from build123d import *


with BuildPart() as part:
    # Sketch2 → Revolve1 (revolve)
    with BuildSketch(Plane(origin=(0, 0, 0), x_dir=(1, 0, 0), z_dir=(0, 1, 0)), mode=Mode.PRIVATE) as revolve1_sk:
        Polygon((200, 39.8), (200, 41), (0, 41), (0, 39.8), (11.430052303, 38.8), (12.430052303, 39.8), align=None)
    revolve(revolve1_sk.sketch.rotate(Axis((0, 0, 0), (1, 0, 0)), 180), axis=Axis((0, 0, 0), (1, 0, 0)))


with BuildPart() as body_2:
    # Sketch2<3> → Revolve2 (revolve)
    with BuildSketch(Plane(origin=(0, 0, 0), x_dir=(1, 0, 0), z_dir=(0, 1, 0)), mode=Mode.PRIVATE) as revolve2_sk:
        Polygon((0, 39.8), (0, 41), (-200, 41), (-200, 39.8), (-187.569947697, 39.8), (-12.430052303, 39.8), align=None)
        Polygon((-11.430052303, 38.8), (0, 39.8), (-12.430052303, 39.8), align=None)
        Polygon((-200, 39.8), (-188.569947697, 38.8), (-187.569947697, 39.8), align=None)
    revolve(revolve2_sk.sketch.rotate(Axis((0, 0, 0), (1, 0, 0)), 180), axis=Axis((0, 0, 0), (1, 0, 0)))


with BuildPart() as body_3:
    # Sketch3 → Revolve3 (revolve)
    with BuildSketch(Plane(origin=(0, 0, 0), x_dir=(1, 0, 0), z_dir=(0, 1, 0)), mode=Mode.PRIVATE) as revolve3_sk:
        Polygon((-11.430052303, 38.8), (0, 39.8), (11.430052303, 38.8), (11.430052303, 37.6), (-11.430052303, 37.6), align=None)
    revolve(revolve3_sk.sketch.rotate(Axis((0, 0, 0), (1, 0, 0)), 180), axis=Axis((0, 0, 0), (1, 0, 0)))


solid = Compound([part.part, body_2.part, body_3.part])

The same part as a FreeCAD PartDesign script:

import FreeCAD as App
import Part
import Sketcher
Q = App.Units.Quantity

doc = App.newDocument("Part")
params = doc.addObject("Spreadsheet::Sheet", "Params")
for row, (alias, value) in enumerate([
    ("sketch1_width", "200 mm"),
    ("sketch1_height", "1.2 mm"),
    ("revolution_angle", "360 deg"),
    ("sketch2_width", "200 mm"),
    ("sketch2_height", "1.2 mm"),
    ("revolution2_angle", "360 deg"),
    ("sketch3_height", "1.2 mm"),
    ("revolution3_angle", "360 deg"),
], start=1):
    params.set(f"A{row}", alias)
    params.set(f"B{row}", "=" + value)
    params.setAlias(f"B{row}", alias)

body = doc.addObject("PartDesign::Body", "Body")

sketch1 = body.newObject("Sketcher::SketchObject", "Sketch")
sketch1.AttachmentSupport = (doc.getObject("XZ_Plane"), [""])
sketch1.MapMode = "FlatFace"
sketch1.addGeometry(Part.LineSegment(App.Vector(200, -39.8, 0), App.Vector(200, -41, 0)), False)
sketch1.addGeometry(Part.LineSegment(App.Vector(200, -41, 0), App.Vector(0, -41, 0)), False)
sketch1.addGeometry(Part.LineSegment(App.Vector(0, -41, 0), App.Vector(0, -39.8, 0)), False)
sketch1.addGeometry(Part.LineSegment(App.Vector(0, -39.8, 0), App.Vector(11.4, -38.8, 0)), False)
sketch1.addGeometry(Part.LineSegment(App.Vector(11.4, -38.8, 0), App.Vector(12.4, -39.8, 0)), False)
sketch1.addGeometry(Part.LineSegment(App.Vector(12.4, -39.8, 0), App.Vector(200, -39.8, 0)), False)
sketch1.addConstraint(Sketcher.Constraint("Coincident", 0, 2, 1, 1))
sketch1.addConstraint(Sketcher.Constraint("Coincident", 1, 2, 2, 1))
sketch1.addConstraint(Sketcher.Constraint("Coincident", 2, 2, 3, 1))
sketch1.addConstraint(Sketcher.Constraint("Coincident", 3, 2, 4, 1))
sketch1.addConstraint(Sketcher.Constraint("Coincident", 4, 2, 5, 1))
sketch1.addConstraint(Sketcher.Constraint("Coincident", 5, 2, 0, 1))
sketch1.addConstraint(Sketcher.Constraint("Vertical", 0))
sketch1.addConstraint(Sketcher.Constraint("Horizontal", 1))
sketch1.addConstraint(Sketcher.Constraint("Vertical", 2))
sketch1.addConstraint(Sketcher.Constraint("Horizontal", 5))
sketch1.addConstraint(Sketcher.Constraint("PointOnObject", 1, 2, -2))
sketch1.addConstraint(Sketcher.Constraint("Horizontal", 2, 2, 4, 2))
sketch1.addConstraint(Sketcher.Constraint("DistanceX", 1, 2, 1, 1, Q("200 mm")))
sketch1.addConstraint(Sketcher.Constraint("Angle", 3, Q("5 deg")))
sketch1.addConstraint(Sketcher.Constraint("Angle", 4, Q("-45 deg")))
sketch1.addConstraint(Sketcher.Constraint("DistanceY", 0, 2, 0, 1, Q("1.2 mm")))
sketch1.addConstraint(Sketcher.Constraint("DistanceY", 0, 2, -1, 1, Q("41 mm")))
sketch1.addConstraint(Sketcher.Constraint("DistanceY", 2, 2, 3, 2, Q("1 mm")))
sketch1.setExpression("Constraints[12]", "Params.sketch1_width")
sketch1.setExpression("Constraints[15]", "Params.sketch1_height")
revolution = body.newObject("PartDesign::Revolution", "Revolution")
revolution.Profile = sketch1
revolution.ReferenceAxis = (sketch1, ["H_Axis"])
revolution.setExpression("Angle", "Params.revolution_angle")
body2 = doc.addObject("PartDesign::Body", "Body001")

sketch2 = body2.newObject("Sketcher::SketchObject", "Sketch001")
sketch2.AttachmentSupport = (doc.getObject("XZ_Plane001"), [""])
sketch2.MapMode = "FlatFace"
sketch2.addGeometry(Part.LineSegment(App.Vector(0, -39.8, 0), App.Vector(0, -41, 0)), False)
sketch2.addGeometry(Part.LineSegment(App.Vector(0, -41, 0), App.Vector(-200, -41, 0)), False)
sketch2.addGeometry(Part.LineSegment(App.Vector(-200, -41, 0), App.Vector(-200, -39.8, 0)), False)
sketch2.addGeometry(Part.LineSegment(App.Vector(-200, -39.8, 0), App.Vector(-188.6, -38.8, 0)), False)
sketch2.addGeometry(Part.LineSegment(App.Vector(-188.6, -38.8, 0), App.Vector(-187.6, -39.8, 0)), False)
sketch2.addGeometry(Part.LineSegment(App.Vector(-187.6, -39.8, 0), App.Vector(-12.4, -39.8, 0)), False)
sketch2.addGeometry(Part.LineSegment(App.Vector(-12.4, -39.8, 0), App.Vector(-11.4, -38.8, 0)), False)
sketch2.addGeometry(Part.LineSegment(App.Vector(-11.4, -38.8, 0), App.Vector(0, -39.8, 0)), False)
sketch2.addConstraint(Sketcher.Constraint("Coincident", 0, 2, 1, 1))
sketch2.addConstraint(Sketcher.Constraint("Coincident", 1, 2, 2, 1))
sketch2.addConstraint(Sketcher.Constraint("Coincident", 2, 2, 3, 1))
sketch2.addConstraint(Sketcher.Constraint("Coincident", 3, 2, 4, 1))
sketch2.addConstraint(Sketcher.Constraint("Coincident", 4, 2, 5, 1))
sketch2.addConstraint(Sketcher.Constraint("Coincident", 5, 2, 6, 1))
sketch2.addConstraint(Sketcher.Constraint("Coincident", 6, 2, 7, 1))
sketch2.addConstraint(Sketcher.Constraint("Coincident", 7, 2, 0, 1))
sketch2.addConstraint(Sketcher.Constraint("Vertical", 0))
sketch2.addConstraint(Sketcher.Constraint("Horizontal", 1))
sketch2.addConstraint(Sketcher.Constraint("Vertical", 2))
sketch2.addConstraint(Sketcher.Constraint("Horizontal", 5))
sketch2.addConstraint(Sketcher.Constraint("PointOnObject", 0, 2, -2))
sketch2.addConstraint(Sketcher.Constraint("Perpendicular", 4, 6))
sketch2.addConstraint(Sketcher.Constraint("Horizontal", 2, 2, 4, 2))
sketch2.addConstraint(Sketcher.Constraint("Horizontal", 3, 2, 6, 2))
sketch2.addConstraint(Sketcher.Constraint("Horizontal", 5, 2, 7, 2))
sketch2.addConstraint(Sketcher.Constraint("Equal", 4, 6))
sketch2.addConstraint(Sketcher.Constraint("Equal", 3, 7))
sketch2.addConstraint(Sketcher.Constraint("DistanceX", 1, 2, 1, 1, Q("200 mm")))
sketch2.addConstraint(Sketcher.Constraint("Angle", 3, Q("5 deg")))
sketch2.addConstraint(Sketcher.Constraint("DistanceY", 0, 2, 0, 1, Q("1.2 mm")))
sketch2.addConstraint(Sketcher.Constraint("DistanceY", 0, 2, -1, 1, Q("41 mm")))
sketch2.addConstraint(Sketcher.Constraint("DistanceY", 2, 2, 3, 2, Q("1 mm")))
sketch2.setExpression("Constraints[19]", "Params.sketch2_width")
sketch2.setExpression("Constraints[21]", "Params.sketch2_height")
revolution2 = body2.newObject("PartDesign::Revolution", "Revolution001")
revolution2.Profile = sketch2
revolution2.ReferenceAxis = (sketch2, ["H_Axis"])
revolution2.setExpression("Angle", "Params.revolution2_angle")
body3 = doc.addObject("PartDesign::Body", "Body002")

sketch3 = body3.newObject("Sketcher::SketchObject", "Sketch002")
sketch3.AttachmentSupport = (doc.getObject("XZ_Plane002"), [""])
sketch3.MapMode = "FlatFace"
sketch3.addGeometry(Part.LineSegment(App.Vector(0, -39.8, 0), App.Vector(-11.4, -38.8, 0)), False)
sketch3.addGeometry(Part.LineSegment(App.Vector(-11.4, -38.8, 0), App.Vector(-11.4, -37.6, 0)), False)
sketch3.addGeometry(Part.LineSegment(App.Vector(-11.4, -37.6, 0), App.Vector(11.4, -37.6, 0)), False)
sketch3.addGeometry(Part.LineSegment(App.Vector(11.4, -37.6, 0), App.Vector(11.4, -38.8, 0)), False)
sketch3.addGeometry(Part.LineSegment(App.Vector(11.4, -38.8, 0), App.Vector(0, -39.8, 0)), False)
sketch3.addConstraint(Sketcher.Constraint("Coincident", 0, 2, 1, 1))
sketch3.addConstraint(Sketcher.Constraint("Coincident", 1, 2, 2, 1))
sketch3.addConstraint(Sketcher.Constraint("Coincident", 2, 2, 3, 1))
sketch3.addConstraint(Sketcher.Constraint("Coincident", 3, 2, 4, 1))
sketch3.addConstraint(Sketcher.Constraint("Coincident", 4, 2, 0, 1))
sketch3.addConstraint(Sketcher.Constraint("Vertical", 1))
sketch3.addConstraint(Sketcher.Constraint("Horizontal", 2))
sketch3.addConstraint(Sketcher.Constraint("Vertical", 3))
sketch3.addConstraint(Sketcher.Constraint("Symmetric", 0, 2, 3, 2, -2))
sketch3.addConstraint(Sketcher.Constraint("PointOnObject", 4, 2, -2))
sketch3.addConstraint(Sketcher.Constraint("Angle", 0, Q("175 deg")))
sketch3.addConstraint(Sketcher.Constraint("DistanceY", 1, 1, 1, 2, Q("1.2 mm")))
sketch3.addConstraint(Sketcher.Constraint("DistanceY", 4, 2, 0, 2, Q("1 mm")))
sketch3.addConstraint(Sketcher.Constraint("DistanceY", 0, 2, -1, 1, Q("38.8 mm")))
sketch3.setExpression("Constraints[11]", "Params.sketch3_height")
revolution3 = body3.newObject("PartDesign::Revolution", "Revolution002")
revolution3.Profile = sketch3
revolution3.ReferenceAxis = (sketch3, ["H_Axis"])
revolution3.setExpression("Angle", "Params.revolution3_angle")

doc.recompute()
